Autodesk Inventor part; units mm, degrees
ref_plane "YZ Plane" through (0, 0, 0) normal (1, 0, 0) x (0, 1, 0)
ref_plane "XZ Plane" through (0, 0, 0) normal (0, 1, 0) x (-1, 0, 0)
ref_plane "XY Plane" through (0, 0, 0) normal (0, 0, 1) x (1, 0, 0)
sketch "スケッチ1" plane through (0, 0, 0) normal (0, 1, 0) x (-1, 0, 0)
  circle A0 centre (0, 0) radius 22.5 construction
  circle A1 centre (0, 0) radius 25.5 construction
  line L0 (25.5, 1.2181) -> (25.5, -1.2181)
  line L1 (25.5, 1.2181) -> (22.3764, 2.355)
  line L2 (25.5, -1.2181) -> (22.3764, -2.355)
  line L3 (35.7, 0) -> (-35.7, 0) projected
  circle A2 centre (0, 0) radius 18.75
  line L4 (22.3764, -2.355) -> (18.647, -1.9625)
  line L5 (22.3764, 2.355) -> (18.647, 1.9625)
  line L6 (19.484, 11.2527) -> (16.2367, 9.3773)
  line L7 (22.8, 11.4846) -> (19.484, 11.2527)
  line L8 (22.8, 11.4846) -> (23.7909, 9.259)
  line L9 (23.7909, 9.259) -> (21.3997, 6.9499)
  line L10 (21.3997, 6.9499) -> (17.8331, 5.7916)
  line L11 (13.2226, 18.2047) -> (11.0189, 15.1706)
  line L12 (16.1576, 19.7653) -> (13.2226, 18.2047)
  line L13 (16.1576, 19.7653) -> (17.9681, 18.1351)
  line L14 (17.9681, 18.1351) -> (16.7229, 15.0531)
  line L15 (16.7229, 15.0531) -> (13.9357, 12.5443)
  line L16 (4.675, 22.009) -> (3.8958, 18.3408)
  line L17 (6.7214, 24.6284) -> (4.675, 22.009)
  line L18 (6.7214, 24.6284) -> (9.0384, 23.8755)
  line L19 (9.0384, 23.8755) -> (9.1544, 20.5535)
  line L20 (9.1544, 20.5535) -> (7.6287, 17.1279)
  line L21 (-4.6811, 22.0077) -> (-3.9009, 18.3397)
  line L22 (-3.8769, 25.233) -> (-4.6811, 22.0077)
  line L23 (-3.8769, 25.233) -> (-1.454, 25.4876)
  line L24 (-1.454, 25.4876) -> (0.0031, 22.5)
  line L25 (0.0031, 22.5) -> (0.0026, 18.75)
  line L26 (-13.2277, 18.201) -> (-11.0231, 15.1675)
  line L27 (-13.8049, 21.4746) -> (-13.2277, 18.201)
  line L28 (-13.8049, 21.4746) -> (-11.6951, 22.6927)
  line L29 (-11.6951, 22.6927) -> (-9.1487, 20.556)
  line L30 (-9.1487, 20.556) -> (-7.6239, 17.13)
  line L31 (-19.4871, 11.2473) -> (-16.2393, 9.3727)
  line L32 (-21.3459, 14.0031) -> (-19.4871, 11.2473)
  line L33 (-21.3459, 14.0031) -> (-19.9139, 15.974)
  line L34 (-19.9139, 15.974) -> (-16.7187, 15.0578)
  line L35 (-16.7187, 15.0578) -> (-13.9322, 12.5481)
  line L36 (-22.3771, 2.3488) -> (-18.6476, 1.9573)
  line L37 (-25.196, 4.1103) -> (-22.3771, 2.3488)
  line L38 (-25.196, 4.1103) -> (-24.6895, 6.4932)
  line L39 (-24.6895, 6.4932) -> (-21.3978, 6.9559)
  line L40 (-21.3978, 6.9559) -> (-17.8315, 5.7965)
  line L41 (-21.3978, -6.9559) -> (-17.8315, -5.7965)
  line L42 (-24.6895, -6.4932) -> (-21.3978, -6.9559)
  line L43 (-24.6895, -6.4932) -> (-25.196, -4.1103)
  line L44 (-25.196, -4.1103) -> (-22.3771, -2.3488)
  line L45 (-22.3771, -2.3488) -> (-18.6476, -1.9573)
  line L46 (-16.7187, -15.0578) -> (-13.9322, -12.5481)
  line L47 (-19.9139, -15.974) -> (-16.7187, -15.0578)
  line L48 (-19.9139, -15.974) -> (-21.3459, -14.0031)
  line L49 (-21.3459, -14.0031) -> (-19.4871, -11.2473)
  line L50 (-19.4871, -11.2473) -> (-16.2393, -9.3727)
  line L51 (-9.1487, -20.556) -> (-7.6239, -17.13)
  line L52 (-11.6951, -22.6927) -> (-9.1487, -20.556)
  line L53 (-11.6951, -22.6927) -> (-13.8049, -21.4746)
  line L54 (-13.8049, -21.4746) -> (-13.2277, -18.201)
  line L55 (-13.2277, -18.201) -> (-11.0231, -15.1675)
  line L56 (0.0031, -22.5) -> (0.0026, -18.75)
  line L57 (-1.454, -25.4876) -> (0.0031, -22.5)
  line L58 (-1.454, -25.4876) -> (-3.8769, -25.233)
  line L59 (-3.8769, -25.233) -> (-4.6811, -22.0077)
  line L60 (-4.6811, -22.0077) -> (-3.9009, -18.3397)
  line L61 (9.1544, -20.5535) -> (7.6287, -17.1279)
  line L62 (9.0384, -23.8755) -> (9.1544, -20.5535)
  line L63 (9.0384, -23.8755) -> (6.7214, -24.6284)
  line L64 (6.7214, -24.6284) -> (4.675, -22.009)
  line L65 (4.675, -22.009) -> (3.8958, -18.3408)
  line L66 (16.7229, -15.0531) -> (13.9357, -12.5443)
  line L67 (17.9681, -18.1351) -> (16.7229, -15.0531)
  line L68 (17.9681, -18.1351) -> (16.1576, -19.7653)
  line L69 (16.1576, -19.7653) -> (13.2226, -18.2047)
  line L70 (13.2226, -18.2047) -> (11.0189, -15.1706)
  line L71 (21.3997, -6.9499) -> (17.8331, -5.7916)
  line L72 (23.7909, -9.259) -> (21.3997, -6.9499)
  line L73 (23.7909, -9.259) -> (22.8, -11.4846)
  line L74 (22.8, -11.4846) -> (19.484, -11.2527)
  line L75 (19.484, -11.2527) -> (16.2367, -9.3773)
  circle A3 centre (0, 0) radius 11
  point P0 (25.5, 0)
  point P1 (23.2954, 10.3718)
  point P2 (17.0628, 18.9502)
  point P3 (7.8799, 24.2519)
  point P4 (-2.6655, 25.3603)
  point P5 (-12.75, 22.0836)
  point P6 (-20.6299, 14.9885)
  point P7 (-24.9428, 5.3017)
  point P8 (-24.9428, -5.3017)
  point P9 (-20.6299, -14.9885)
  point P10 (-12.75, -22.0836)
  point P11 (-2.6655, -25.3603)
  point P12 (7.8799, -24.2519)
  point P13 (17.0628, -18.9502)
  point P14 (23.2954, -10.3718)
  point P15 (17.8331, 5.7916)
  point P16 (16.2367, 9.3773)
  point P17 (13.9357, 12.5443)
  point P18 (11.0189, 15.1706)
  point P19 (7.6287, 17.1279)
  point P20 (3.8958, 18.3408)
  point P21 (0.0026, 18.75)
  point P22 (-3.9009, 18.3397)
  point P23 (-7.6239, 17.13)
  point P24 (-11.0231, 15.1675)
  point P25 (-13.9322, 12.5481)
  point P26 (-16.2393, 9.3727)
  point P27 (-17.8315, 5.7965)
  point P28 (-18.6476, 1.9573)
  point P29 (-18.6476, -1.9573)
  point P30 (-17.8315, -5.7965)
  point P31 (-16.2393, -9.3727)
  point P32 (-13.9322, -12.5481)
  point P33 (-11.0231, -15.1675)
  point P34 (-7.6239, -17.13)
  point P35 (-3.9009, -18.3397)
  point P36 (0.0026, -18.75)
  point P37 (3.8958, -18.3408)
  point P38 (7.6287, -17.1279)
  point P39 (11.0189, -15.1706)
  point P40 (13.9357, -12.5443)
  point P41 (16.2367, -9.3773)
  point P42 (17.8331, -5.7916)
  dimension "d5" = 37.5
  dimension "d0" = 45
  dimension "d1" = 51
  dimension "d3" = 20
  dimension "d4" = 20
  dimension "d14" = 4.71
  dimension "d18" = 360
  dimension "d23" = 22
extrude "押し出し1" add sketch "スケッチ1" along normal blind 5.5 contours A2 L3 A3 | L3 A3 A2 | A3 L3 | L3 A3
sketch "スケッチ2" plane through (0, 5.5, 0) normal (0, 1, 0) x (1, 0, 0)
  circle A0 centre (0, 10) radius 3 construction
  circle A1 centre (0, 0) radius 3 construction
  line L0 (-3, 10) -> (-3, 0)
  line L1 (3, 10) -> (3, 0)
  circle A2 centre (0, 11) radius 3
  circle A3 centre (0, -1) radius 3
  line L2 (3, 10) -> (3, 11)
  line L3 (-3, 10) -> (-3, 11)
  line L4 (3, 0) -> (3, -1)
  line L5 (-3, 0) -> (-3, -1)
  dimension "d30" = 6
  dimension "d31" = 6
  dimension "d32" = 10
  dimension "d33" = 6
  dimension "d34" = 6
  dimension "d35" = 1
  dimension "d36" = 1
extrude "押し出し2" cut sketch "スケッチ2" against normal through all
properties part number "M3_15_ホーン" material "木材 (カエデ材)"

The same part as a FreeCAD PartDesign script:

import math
import FreeCAD as App
import Part
import Sketcher
from FreeCAD import Vector

doc = App.newDocument("Part")
body = doc.addObject("PartDesign::Body", "Body")

# Sketch on XZ plane
sketch1 = doc.addObject("Sketcher::SketchObject", "Sketch")
body.addObject(sketch1)
sketch1.AttachmentSupport = (doc.XZ_Plane, [""])
sketch1.MapMode = "FlatFace"
sketch1.addGeometry(Part.Circle(Vector(0, 0, 0), Vector(0, 0, 1), 19), False)
sketch1.addConstraint(Sketcher.Constraint("Coincident", 0, 3, -1, 1))
sketch1.addConstraint(Sketcher.Constraint("Diameter", 0, 37.5))
pad1 = doc.addObject("PartDesign::Pad", "Pad")
body.addObject(pad1)
pad1.Profile = sketch1
pad1.Length = 5.5
pad1.Reversed = True

# Sketch on XZ plane
sketch2 = doc.addObject("Sketcher::SketchObject", "Sketch001")
body.addObject(sketch2)
sketch2.AttachmentSupport = (doc.XZ_Plane, [""])
sketch2.MapMode = "FlatFace"
sketch2.AttachmentOffset = App.Placement(Vector(0, 0, -5.5), App.Rotation())
sketch2.addGeometry(Part.LineSegment(Vector(-3, -11, 0), Vector(-3, 1, 0)), False)
sketch2.addGeometry(Part.ArcOfCircle(Part.Circle(Vector(0, 1, 0), Vector(0, 0, 1), 3), math.radians(0), math.radians(180)), False)
sketch2.addGeometry(Part.LineSegment(Vector(3, 1, 0), Vector(3, -11, 0)), False)
sketch2.addGeometry(Part.ArcOfCircle(Part.Circle(Vector(0, -11, 0), Vector(0, 0, 1), 3), math.radians(180), math.radians(360)), False)
sketch2.addConstraint(Sketcher.Constraint("Tangent", 0, 2, 1, 2))
sketch2.addConstraint(Sketcher.Constraint("Tangent", 1, 1, 2, 1))
sketch2.addConstraint(Sketcher.Constraint("Tangent", 2, 2, 3, 2))
sketch2.addConstraint(Sketcher.Constraint("Tangent", 3, 1, 0, 1))
sketch2.addConstraint(Sketcher.Constraint("Vertical", 0))
sketch2.addConstraint(Sketcher.Constraint("Vertical", 2))
sketch2.addConstraint(Sketcher.Constraint("PointOnObject", 1, 3, -2))
sketch2.addConstraint(Sketcher.Constraint("Radius", 1, 3.0))
sketch2.addConstraint(Sketcher.Constraint("DistanceY", -1, 1, 1, 3, 1.0))
sketch2.addConstraint(Sketcher.Constraint("DistanceY", 0, 1, 0, 2, 12.0))
pocket1 = doc.addObject("PartDesign::Pocket", "Pocket")
body.addObject(pocket1)
pocket1.Profile = sketch2
pocket1.Type = "ThroughAll"
pocket1.Reversed = True

doc.recompute()
